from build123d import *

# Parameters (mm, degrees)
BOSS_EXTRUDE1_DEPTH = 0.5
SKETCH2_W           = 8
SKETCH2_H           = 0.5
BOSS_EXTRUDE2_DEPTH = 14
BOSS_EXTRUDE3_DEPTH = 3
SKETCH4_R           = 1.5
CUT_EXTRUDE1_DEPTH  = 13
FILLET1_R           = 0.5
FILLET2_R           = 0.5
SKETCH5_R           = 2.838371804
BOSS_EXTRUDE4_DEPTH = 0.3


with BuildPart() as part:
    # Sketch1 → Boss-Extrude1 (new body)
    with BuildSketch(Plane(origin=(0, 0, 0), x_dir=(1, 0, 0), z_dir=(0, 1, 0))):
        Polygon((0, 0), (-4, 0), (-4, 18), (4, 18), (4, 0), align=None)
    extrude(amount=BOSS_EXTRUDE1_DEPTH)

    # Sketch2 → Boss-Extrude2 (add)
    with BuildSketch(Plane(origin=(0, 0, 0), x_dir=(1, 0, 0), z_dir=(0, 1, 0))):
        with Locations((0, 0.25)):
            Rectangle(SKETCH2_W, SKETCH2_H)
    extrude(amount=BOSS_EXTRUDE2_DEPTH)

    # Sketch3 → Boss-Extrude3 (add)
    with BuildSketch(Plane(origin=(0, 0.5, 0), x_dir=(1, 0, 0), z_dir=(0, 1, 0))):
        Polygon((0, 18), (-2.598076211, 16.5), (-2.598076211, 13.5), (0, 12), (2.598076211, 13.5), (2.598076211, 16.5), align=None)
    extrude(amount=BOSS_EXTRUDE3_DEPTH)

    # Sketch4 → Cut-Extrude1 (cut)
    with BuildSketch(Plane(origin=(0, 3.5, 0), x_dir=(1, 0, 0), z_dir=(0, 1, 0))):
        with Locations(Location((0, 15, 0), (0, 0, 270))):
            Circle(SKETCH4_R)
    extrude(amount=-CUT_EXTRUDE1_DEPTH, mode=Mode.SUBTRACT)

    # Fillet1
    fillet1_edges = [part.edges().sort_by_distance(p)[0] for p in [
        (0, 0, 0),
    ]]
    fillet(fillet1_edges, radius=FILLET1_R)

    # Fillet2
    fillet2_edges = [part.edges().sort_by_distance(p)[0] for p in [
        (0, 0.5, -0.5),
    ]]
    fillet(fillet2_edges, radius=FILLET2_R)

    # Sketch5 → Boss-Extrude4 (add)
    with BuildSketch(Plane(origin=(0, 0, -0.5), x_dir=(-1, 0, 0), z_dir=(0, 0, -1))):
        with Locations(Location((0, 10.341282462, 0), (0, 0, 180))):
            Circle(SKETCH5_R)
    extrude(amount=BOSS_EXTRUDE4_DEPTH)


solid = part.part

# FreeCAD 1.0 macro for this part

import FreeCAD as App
import Part
import Sketcher

V = App.Vector
Q = App.Units.Quantity


def edges_at(feature, points):
    """Names of the edges that pass closest to the given points."""
    edges = feature.Shape.Edges
    near = lambda p: min(range(len(edges)), key=lambda i: edges[i].distToShape(Part.Vertex(*p))[0])
    return sorted({f"Edge{near(p) + 1}" for p in points})

doc = App.newDocument("Part")
body = doc.addObject("PartDesign::Body", "Body")

# Sketch on XZ plane
sketch1 = doc.addObject("Sketcher::SketchObject", "Sketch")
body.addObject(sketch1)
sketch1.AttachmentSupport = (doc.XZ_Plane, [""])
sketch1.MapMode = "FlatFace"
sketch1.addGeometry([
    Part.LineSegment(V(-4, 0, 0), V(4, 0, 0)),
    Part.LineSegment(V(4, 0, 0), V(4, -18, 0)),
    Part.LineSegment(V(4, -18, 0), V(-4, -18, 0)),
    Part.LineSegment(V(-4, -18, 0), V(-4, 0, 0)),
], False)
sketch1.addConstraint([
    Sketcher.Constraint("Coincident", 0, 2, 1, 1),
    Sketcher.Constraint("Coincident", 1, 2, 2, 1),
    Sketcher.Constraint("Coincident", 2, 2, 3, 1),
    Sketcher.Constraint("Coincident", 3, 2, 0, 1),
    Sketcher.Constraint("Horizontal", 0),
    Sketcher.Constraint("Vertical", 1),
    Sketcher.Constraint("Horizontal", 2),
    Sketcher.Constraint("Vertical", 3),
    Sketcher.Constraint("Symmetric", 0, 2, 3, 2, -1, 1),
    Sketcher.Constraint("DistanceX", 0, 1, 0, 2, Q("8 mm")),
    Sketcher.Constraint("DistanceY", 1, 2, 1, 1, Q("18 mm")),
])
pad1 = doc.addObject("PartDesign::Pad", "Pad")
body.addObject(pad1)
pad1.Profile = sketch1
pad1.Length = 0.5
pad1.Reversed = True

# Sketch on XZ plane
sketch2 = doc.addObject("Sketcher::SketchObject", "Sketch001")
body.addObject(sketch2)
sketch2.AttachmentSupport = (doc.XZ_Plane, [""])
sketch2.MapMode = "FlatFace"
sketch2.addGeometry([
    Part.LineSegment(V(-4, -0.5, 0), V(-4, 0, 0)),
    Part.LineSegment(V(-4, 0, 0), V(4, 0, 0)),
    Part.LineSegment(V(4, 0, 0), V(4, -0.5, 0)),
    Part.LineSegment(V(4, -0.5, 0), V(-4, -0.5, 0)),
], False)
sketch2.addConstraint([
    Sketcher.Constraint("Coincident", 0, 2, 1, 1),
    Sketcher.Constraint("Coincident", 1, 2, 2, 1),
    Sketcher.Constraint("Coincident", 2, 2, 3, 1),
    Sketcher.Constraint("Coincident", 3, 2, 0, 1),
    Sketcher.Constraint("Vertical", 0),
    Sketcher.Constraint("Horizontal", 1),
    Sketcher.Constraint("Vertical", 2),
    Sketcher.Constraint("Horizontal", 3),
    Sketcher.Constraint("Symmetric", 0, 2, 1, 2, -1, 1),
    Sketcher.Constraint("DistanceX", 1, 1, 1, 2, Q("8 mm")),
    Sketcher.Constraint("DistanceY", 0, 1, 0, 2, Q("0.5 mm")),
])
pad2 = doc.addObject("PartDesign::Pad", "Pad001")
body.addObject(pad2)
pad2.Profile = sketch2
pad2.Length = 14
pad2.Reversed = True

# Sketch on XZ plane
sketch3 = doc.addObject("Sketcher::SketchObject", "Sketch002")
body.addObject(sketch3)
sketch3.AttachmentSupport = (doc.XZ_Plane, [""])
sketch3.MapMode = "FlatFace"
sketch3.AttachmentOffset = App.Placement(V(0, 0, -0.5), App.Rotation())
sketch3.addGeometry([
    Part.LineSegment(V(0, -18, 0), V(-2.6, -16.5, 0)),  # 0
    Part.LineSegment(V(-2.6, -16.5, 0), V(-2.6, -13.5, 0)),  # 1
    Part.LineSegment(V(-2.6, -13.5, 0), V(0, -12, 0)),  # 2
    Part.LineSegment(V(0, -12, 0), V(2.6, -13.5, 0)),  # 3
    Part.LineSegment(V(2.6, -13.5, 0), V(2.6, -16.5, 0)),  # 4
    Part.LineSegment(V(2.6, -16.5, 0), V(0, -18, 0)),  # 5
], False)
sketch3.addConstraint([
    Sketcher.Constraint("Coincident", 0, 2, 1, 1),
    Sketcher.Constraint("Coincident", 1, 2, 2, 1),
    Sketcher.Constraint("Coincident", 2, 2, 3, 1),
    Sketcher.Constraint("Coincident", 3, 2, 4, 1),
    Sketcher.Constraint("Coincident", 4, 2, 5, 1),
    Sketcher.Constraint("Coincident", 5, 2, 0, 1),
    Sketcher.Constraint("Vertical", 1),
    Sketcher.Constraint("Vertical", 4),
    Sketcher.Constraint("Symmetric", 1, 2, 3, 2, -2),
    Sketcher.Constraint("PointOnObject", 2, 2, -2),
    Sketcher.Constraint("PointOnObject", 5, 2, -2),
    Sketcher.Constraint("Parallel", 0, 3),
    Sketcher.Constraint("Parallel", 2, 5),
    Sketcher.Constraint("DistanceY", 1, 1, 1, 2, Q("3 mm")),
    Sketcher.Constraint("Angle", 0, Q("150 deg")),
    Sketcher.Constraint("Distance", 0, Q("3 mm")),
    Sketcher.Constraint("DistanceY", 2, 2, -1, 1, Q("12 mm")),
])
pad3 = doc.addObject("PartDesign::Pad", "Pad002")
body.addObject(pad3)
pad3.Profile = sketch3
pad3.Length = 3
pad3.Reversed = True

# Sketch on XZ plane
sketch4 = doc.addObject("Sketcher::SketchObject", "Sketch003")
body.addObject(sketch4)
sketch4.AttachmentSupport = (doc.XZ_Plane, [""])
sketch4.MapMode = "FlatFace"
sketch4.AttachmentOffset = App.Placement(V(0, 0, -3.5), App.Rotation())
sketch4.addGeometry(Part.Circle(V(0, -15, 0), V(0, 0, 1), 1.5), False)
sketch4.addConstraint([
    Sketcher.Constraint("PointOnObject", 0, 3, -2),
    Sketcher.Constraint("Diameter", 0, Q("3 mm")),
    Sketcher.Constraint("DistanceY", 0, 3, -1, 1, Q("15 mm")),
])
pocket1 = doc.addObject("PartDesign::Pocket", "Pocket")
body.addObject(pocket1)
pocket1.Profile = sketch4
pocket1.Length = 13
pocket1.Reversed = True
doc.recompute()

fillet = doc.addObject("PartDesign::Fillet", "Fillet")
body.addObject(fillet)
fillet.Base = (pocket1, edges_at(pocket1, [(0, 0, 0)]))
fillet.Radius = 0.5
doc.recompute()

fillet2 = doc.addObject("PartDesign::Fillet", "Fillet001")
body.addObject(fillet2)
fillet2.Base = (fillet, edges_at(fillet, [(0, 0.5, -0.5)]))
fillet2.Radius = 0.5

# Sketch on XY plane
sketch5 = doc.addObject("Sketcher::SketchObject", "Sketch004")
body.addObject(sketch5)
sketch5.AttachmentSupport = (doc.XY_Plane, [""])
sketch5.MapMode = "FlatFace"
sketch5.AttachmentOffset = App.Placement(V(0, 0, -0.5), App.Rotation())
sketch5.addGeometry(Part.Circle(V(0, 10.3, 0), V(0, 0, 1), 2.8), False)
sketch5.addConstraint([
    Sketcher.Constraint("PointOnObject", 0, 3, -2),
    Sketcher.Constraint("Diameter", 0, Q("5.676744 mm")),
    Sketcher.Constraint("DistanceY", -1, 1, 0, 3, Q("10.341282 mm")),
])
pad4 = doc.addObject("PartDesign::Pad", "Pad003")
body.addObject(pad4)
pad4.Profile = sketch5
pad4.Length = 0.3
pad4.Reversed = True

doc.recompute()
